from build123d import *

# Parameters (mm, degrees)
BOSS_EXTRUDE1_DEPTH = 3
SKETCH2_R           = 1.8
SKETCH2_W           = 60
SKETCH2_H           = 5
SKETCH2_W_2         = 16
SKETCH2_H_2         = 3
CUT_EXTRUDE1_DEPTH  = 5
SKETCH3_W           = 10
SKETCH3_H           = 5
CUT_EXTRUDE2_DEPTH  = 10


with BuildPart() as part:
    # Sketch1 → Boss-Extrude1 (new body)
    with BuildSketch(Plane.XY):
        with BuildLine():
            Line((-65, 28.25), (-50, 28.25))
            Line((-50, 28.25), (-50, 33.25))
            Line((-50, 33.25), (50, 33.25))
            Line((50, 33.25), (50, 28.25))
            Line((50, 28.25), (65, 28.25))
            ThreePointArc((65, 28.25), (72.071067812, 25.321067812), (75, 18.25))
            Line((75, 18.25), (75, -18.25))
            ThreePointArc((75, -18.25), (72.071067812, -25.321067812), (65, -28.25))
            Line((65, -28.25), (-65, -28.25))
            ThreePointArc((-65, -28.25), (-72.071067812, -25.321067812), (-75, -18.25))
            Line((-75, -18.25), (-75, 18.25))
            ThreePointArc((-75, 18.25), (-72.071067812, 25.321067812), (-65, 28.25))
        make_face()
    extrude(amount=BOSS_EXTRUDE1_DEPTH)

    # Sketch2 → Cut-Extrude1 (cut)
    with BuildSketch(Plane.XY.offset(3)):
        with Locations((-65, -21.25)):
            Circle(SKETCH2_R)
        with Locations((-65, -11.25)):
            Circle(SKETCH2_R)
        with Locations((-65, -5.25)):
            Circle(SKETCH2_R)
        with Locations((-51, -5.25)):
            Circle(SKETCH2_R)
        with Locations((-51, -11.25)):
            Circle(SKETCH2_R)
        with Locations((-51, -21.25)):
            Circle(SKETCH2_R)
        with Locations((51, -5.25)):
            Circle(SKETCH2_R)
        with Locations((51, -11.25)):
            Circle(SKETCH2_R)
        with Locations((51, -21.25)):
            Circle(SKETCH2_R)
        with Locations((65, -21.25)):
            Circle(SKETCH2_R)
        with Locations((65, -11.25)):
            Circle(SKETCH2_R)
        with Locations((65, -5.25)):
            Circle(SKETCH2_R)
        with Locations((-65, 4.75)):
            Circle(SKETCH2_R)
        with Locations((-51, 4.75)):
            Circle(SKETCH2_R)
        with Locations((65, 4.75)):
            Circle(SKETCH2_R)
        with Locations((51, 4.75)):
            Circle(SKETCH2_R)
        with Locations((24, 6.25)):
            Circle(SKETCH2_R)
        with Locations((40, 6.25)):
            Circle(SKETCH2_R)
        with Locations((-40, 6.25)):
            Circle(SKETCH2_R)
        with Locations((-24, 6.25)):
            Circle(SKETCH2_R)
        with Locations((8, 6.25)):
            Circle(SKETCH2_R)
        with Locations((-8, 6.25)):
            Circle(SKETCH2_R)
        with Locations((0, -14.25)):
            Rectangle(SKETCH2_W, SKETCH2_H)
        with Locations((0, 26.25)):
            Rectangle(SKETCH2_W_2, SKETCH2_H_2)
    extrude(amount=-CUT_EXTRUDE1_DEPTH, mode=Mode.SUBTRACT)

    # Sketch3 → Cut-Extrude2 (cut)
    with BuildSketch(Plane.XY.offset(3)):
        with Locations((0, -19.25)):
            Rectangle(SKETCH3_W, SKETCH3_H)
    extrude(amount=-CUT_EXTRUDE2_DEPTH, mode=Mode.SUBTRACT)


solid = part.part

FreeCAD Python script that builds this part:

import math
import FreeCAD as App
import Part
import Sketcher


def add_polygon(sketch, points):
    """Adds a closed chain of lines whose ends are joined by coincident constraints."""
    first, n = sketch.GeometryCount, len(points)
    for a, b in zip(points, points[1:] + points[:1]):
        sketch.addGeometry(Part.LineSegment(App.Vector(*a, 0), App.Vector(*b, 0)), False)
    for i in range(n):
        sketch.addConstraint(Sketcher.Constraint("Coincident", first + i, 2, first + (i + 1) % n, 1))

doc = App.newDocument("Part")
body = doc.addObject("PartDesign::Body", "Body")

sketch1 = doc.addObject("Sketcher::SketchObject", "Sketch")
body.addObject(sketch1)
sketch1.AttachmentSupport = (doc.XY_Plane, [""])
sketch1.MapMode = "FlatFace"
sketch1.addGeometry([
    Part.LineSegment(App.Vector(-50, 28.25, 0), App.Vector(-65, 28.25, 0)),
    Part.ArcOfCircle(Part.Circle(App.Vector(-65, 18.25, 0), App.Vector(0, 0, 1), 10), math.radians(90), math.radians(180)),
    Part.LineSegment(App.Vector(-75, 18.25, 0), App.Vector(-75, -18.25, 0)),
    Part.ArcOfCircle(Part.Circle(App.Vector(-65, -18.25, 0), App.Vector(0, 0, 1), 10), math.radians(180), math.radians(270)),
    Part.LineSegment(App.Vector(-65, -28.25, 0), App.Vector(65, -28.25, 0)),
    Part.ArcOfCircle(Part.Circle(App.Vector(65, -18.25, 0), App.Vector(0, 0, 1), 10), math.radians(-90), math.radians(0)),
    Part.LineSegment(App.Vector(75, -18.25, 0), App.Vector(75, 18.25, 0)),
    Part.ArcOfCircle(Part.Circle(App.Vector(65, 18.25, 0), App.Vector(0, 0, 1), 10), math.radians(0), math.radians(90)),
    Part.LineSegment(App.Vector(65, 28.25, 0), App.Vector(50, 28.25, 0)),
    Part.LineSegment(App.Vector(50, 28.25, 0), App.Vector(50, 33.25, 0)),
    Part.LineSegment(App.Vector(50, 33.25, 0), App.Vector(-50, 33.25, 0)),
    Part.LineSegment(App.Vector(-50, 33.25, 0), App.Vector(-50, 28.25, 0)),
], False)
sketch1.addConstraint([
    Sketcher.Constraint("Tangent", 0, 2, 1, 1),
    Sketcher.Constraint("Tangent", 1, 2, 2, 1),
    Sketcher.Constraint("Tangent", 2, 2, 3, 1),
    Sketcher.Constraint("Tangent", 3, 2, 4, 1),
    Sketcher.Constraint("Tangent", 4, 2, 5, 1),
    Sketcher.Constraint("Tangent", 5, 2, 6, 1),
    Sketcher.Constraint("Tangent", 6, 2, 7, 1),
    Sketcher.Constraint("Tangent", 7, 2, 8, 1),
    Sketcher.Constraint("Coincident", 8, 2, 9, 1),
    Sketcher.Constraint("Coincident", 9, 2, 10, 1),
    Sketcher.Constraint("Coincident", 10, 2, 11, 1),
    Sketcher.Constraint("Coincident", 11, 2, 0, 1),
    Sketcher.Constraint("Horizontal", 0),
    Sketcher.Constraint("Vertical", 2),
    Sketcher.Constraint("Horizontal", 4),
    Sketcher.Constraint("Vertical", 6),
    Sketcher.Constraint("Horizontal", 8),
    Sketcher.Constraint("Vertical", 9),
    Sketcher.Constraint("Horizontal", 10),
    Sketcher.Constraint("Vertical", 11),
    Sketcher.Constraint("Equal", 1, 3),
    Sketcher.Constraint("Equal", 3, 5),
    Sketcher.Constraint("Equal", 5, 7),
    Sketcher.Constraint("Symmetric", 1, 3, 5, 3, -1, 1),
    Sketcher.Constraint("Symmetric", 8, 2, 11, 2, -2),
    Sketcher.Constraint("Radius", 1, 10.0),
    Sketcher.Constraint("DistanceX", 0, 2, 0, 1, 15.0),
    Sketcher.Constraint("DistanceX", 4, 1, 4, 2, 130.0),
    Sketcher.Constraint("DistanceY", 9, 1, 9, 2, 5.0),
    Sketcher.Constraint("DistanceY", 2, 2, 2, 1, 36.5),
])
pad1 = doc.addObject("PartDesign::Pad", "Pad")
body.addObject(pad1)
pad1.Profile = sketch1
pad1.Length = 3

sketch2 = doc.addObject("Sketcher::SketchObject", "Sketch001")
body.addObject(sketch2)
sketch2.AttachmentSupport = (doc.XY_Plane, [""])
sketch2.MapMode = "FlatFace"
sketch2.AttachmentOffset = App.Placement(App.Vector(0, 0, 3), App.Rotation())
sketch2.addGeometry(Part.Circle(App.Vector(-65, -21.25, 0), App.Vector(0, 0, 1), 1.8), False)
sketch2.addGeometry(Part.Circle(App.Vector(-65, -11.25, 0), App.Vector(0, 0, 1), 1.8), False)
sketch2.addGeometry(Part.Circle(App.Vector(-65, -5.25, 0), App.Vector(0, 0, 1), 1.8), False)
sketch2.addGeometry(Part.Circle(App.Vector(-51, -5.25, 0), App.Vector(0, 0, 1), 1.8), False)
sketch2.addGeometry(Part.Circle(App.Vector(-51, -11.25, 0), App.Vector(0, 0, 1), 1.8), False)
sketch2.addGeometry(Part.Circle(App.Vector(-51, -21.25, 0), App.Vector(0, 0, 1), 1.8), False)
sketch2.addGeometry(Part.Circle(App.Vector(51, -5.25, 0), App.Vector(0, 0, 1), 1.8), False)
sketch2.addGeometry(Part.Circle(App.Vector(51, -11.25, 0), App.Vector(0, 0, 1), 1.8), False)
sketch2.addGeometry(Part.Circle(App.Vector(51, -21.25, 0), App.Vector(0, 0, 1), 1.8), False)
sketch2.addGeometry(Part.Circle(App.Vector(65, -21.25, 0), App.Vector(0, 0, 1), 1.8), False)
sketch2.addGeometry(Part.Circle(App.Vector(65, -11.25, 0), App.Vector(0, 0, 1), 1.8), False)
sketch2.addGeometry(Part.Circle(App.Vector(65, -5.25, 0), App.Vector(0, 0, 1), 1.8), False)
sketch2.addGeometry(Part.Circle(App.Vector(-65, 4.75, 0), App.Vector(0, 0, 1), 1.8), False)
sketch2.addGeometry(Part.Circle(App.Vector(-51, 4.75, 0), App.Vector(0, 0, 1), 1.8), False)
sketch2.addGeometry(Part.Circle(App.Vector(65, 4.75, 0), App.Vector(0, 0, 1), 1.8), False)
sketch2.addGeometry(Part.Circle(App.Vector(51, 4.75, 0), App.Vector(0, 0, 1), 1.8), False)
sketch2.addGeometry(Part.Circle(App.Vector(24, 6.25, 0), App.Vector(0, 0, 1), 1.8), False)
sketch2.addGeometry(Part.Circle(App.Vector(40, 6.25, 0), App.Vector(0, 0, 1), 1.8), False)
sketch2.addGeometry(Part.Circle(App.Vector(-40, 6.25, 0), App.Vector(0, 0, 1), 1.8), False)
sketch2.addGeometry(Part.Circle(App.Vector(-24, 6.25, 0), App.Vector(0, 0, 1), 1.8), False)
sketch2.addGeometry(Part.Circle(App.Vector(8, 6.25, 0), App.Vector(0, 0, 1), 1.8), False)
sketch2.addGeometry(Part.Circle(App.Vector(-8, 6.25, 0), App.Vector(0, 0, 1), 1.8), False)
add_polygon(sketch2, [(-30, -11.75), (-30, -16.75), (30, -16.75), (30, -11.75)])
add_polygon(sketch2, [(-8, 27.75), (-8, 24.75), (8, 24.75), (8, 27.75)])
sketch2.addConstraint([
    Sketcher.Constraint("Vertical", 22),
    Sketcher.Constraint("Horizontal", 23),
    Sketcher.Constraint("Vertical", 24),
    Sketcher.Constraint("Horizontal", 25),
    Sketcher.Constraint("Vertical", 26),
    Sketcher.Constraint("Horizontal", 27),
    Sketcher.Constraint("Vertical", 28),
    Sketcher.Constraint("Horizontal", 29),
    Sketcher.Constraint("Equal", 0, 1),
    Sketcher.Constraint("Equal", 1, 2),
    Sketcher.Constraint("Equal", 2, 3),
    Sketcher.Constraint("Equal", 3, 4),
    Sketcher.Constraint("Equal", 4, 5),
    Sketcher.Constraint("Equal", 5, 6),
    Sketcher.Constraint("Equal", 6, 7),
    Sketcher.Constraint("Equal", 7, 8),
    Sketcher.Constraint("Equal", 8, 9),
    Sketcher.Constraint("Equal", 9, 10),
    Sketcher.Constraint("Equal", 10, 11),
    Sketcher.Constraint("Equal", 11, 12),
    Sketcher.Constraint("Equal", 12, 13),
    Sketcher.Constraint("Equal", 13, 14),
    Sketcher.Constraint("Equal", 14, 15),
    Sketcher.Constraint("Equal", 15, 16),
    Sketcher.Constraint("Equal", 16, 17),
    Sketcher.Constraint("Equal", 17, 18),
    Sketcher.Constraint("Equal", 18, 19),
    Sketcher.Constraint("Equal", 19, 20),
    Sketcher.Constraint("Equal", 20, 21),
    Sketcher.Constraint("Symmetric", 3, 3, 6, 3, -2),
    Sketcher.Constraint("Symmetric", 4, 3, 7, 3, -2),
    Sketcher.Constraint("Symmetric", 5, 3, 8, 3, -2),
    Sketcher.Constraint("Symmetric", 0, 3, 9, 3, -2),
    Sketcher.Constraint("Symmetric", 1, 3, 10, 3, -2),
    Sketcher.Constraint("Symmetric", 2, 3, 11, 3, -2),
    Sketcher.Constraint("Symmetric", 12, 3, 14, 3, -2),
    Sketcher.Constraint("Symmetric", 13, 3, 15, 3, -2),
    Sketcher.Constraint("Symmetric", 17, 3, 18, 3, -2),
    Sketcher.Constraint("Symmetric", 16, 3, 19, 3, -2),
    Sketcher.Constraint("Symmetric", 20, 3, 21, 3, -2),
    Sketcher.Constraint("Horizontal", 2, 3, 3, 3),
    Sketcher.Constraint("Horizontal", 1, 3, 4, 3),
    Sketcher.Constraint("Horizontal", 0, 3, 5, 3),
    Sketcher.Constraint("Horizontal", 12, 3, 13, 3),
    Sketcher.Constraint("Horizontal", 16, 3, 17, 3),
    Sketcher.Constraint("Horizontal", 19, 3, 20, 3),
    Sketcher.Constraint("Vertical", 0, 3, 1, 3),
    Sketcher.Constraint("Vertical", 1, 3, 2, 3),
    Sketcher.Constraint("Vertical", 3, 3, 4, 3),
    Sketcher.Constraint("Vertical", 4, 3, 5, 3),
    Sketcher.Constraint("Vertical", 2, 3, 12, 3),
    Sketcher.Constraint("Vertical", 5, 3, 13, 3),
    Sketcher.Constraint("Vertical", 21, 3, 26, 2),
    Sketcher.Constraint("Vertical", 20, 3, 27, 2),
    Sketcher.Constraint("Diameter", 0, 3.6),
    Sketcher.Constraint("DistanceX", 23, 1, 23, 2, 60.0),
    Sketcher.Constraint("DistanceX", 27, 1, 27, 2, 16.0),
    Sketcher.Constraint("DistanceY", 22, 2, 22, 1, 5.0),
    Sketcher.Constraint("DistanceY", 26, 2, 26, 1, 3.0),
    Sketcher.Constraint("DistanceX", 0, 3, -1, 1, 65.0),
    Sketcher.Constraint("DistanceX", 3, 3, -1, 1, 51.0),
    Sketcher.Constraint("DistanceX", -1, 1, 16, 3, 24.0),
    Sketcher.Constraint("DistanceX", -1, 1, 17, 3, 40.0),
    Sketcher.Constraint("DistanceX", 22, 2, -1, 1, 30.0),
    Sketcher.Constraint("DistanceY", 0, 3, 1, 3, 10.0),
    Sketcher.Constraint("DistanceY", 1, 3, 2, 3, 6.0),
    Sketcher.Constraint("DistanceY", 2, 3, 12, 3, 10.0),
    Sketcher.Constraint("DistanceY", 22, 2, 19, 3, 23.0),
    Sketcher.Constraint("DistanceY", 15, 3, 16, 3, 1.5),
    Sketcher.Constraint("DistanceY", 21, 3, 26, 2, 18.5),
    Sketcher.Constraint("DistanceY", 0, 3, -1, 1, 21.25),
])
pocket1 = doc.addObject("PartDesign::Pocket", "Pocket")
body.addObject(pocket1)
pocket1.Profile = sketch2
pocket1.Length = 5

sketch3 = doc.addObject("Sketcher::SketchObject", "Sketch002")
body.addObject(sketch3)
sketch3.AttachmentSupport = (doc.XY_Plane, [""])
sketch3.MapMode = "FlatFace"
sketch3.AttachmentOffset = App.Placement(App.Vector(0, 0, 3), App.Rotation())
add_polygon(sketch3, [(-5, -16.75), (-5, -21.75), (5, -21.75), (5, -16.75)])
sketch3.addConstraint([
    Sketcher.Constraint("Vertical", 0),
    Sketcher.Constraint("Horizontal", 1),
    Sketcher.Constraint("Vertical", 2),
    Sketcher.Constraint("Horizontal", 3),
    Sketcher.Constraint("DistanceX", 1, 1, 1, 2, 10.0),
    Sketcher.Constraint("DistanceY", 0, 2, 0, 1, 5.0),
    Sketcher.Constraint("DistanceX", 0, 2, -1, 1, 5.0),
    Sketcher.Constraint("DistanceY", 0, 2, -1, 1, 21.75),
])
pocket2 = doc.addObject("PartDesign::Pocket", "Pocket001")
body.addObject(pocket2)
pocket2.Profile = sketch3
pocket2.Length = 10

doc.recompute()
